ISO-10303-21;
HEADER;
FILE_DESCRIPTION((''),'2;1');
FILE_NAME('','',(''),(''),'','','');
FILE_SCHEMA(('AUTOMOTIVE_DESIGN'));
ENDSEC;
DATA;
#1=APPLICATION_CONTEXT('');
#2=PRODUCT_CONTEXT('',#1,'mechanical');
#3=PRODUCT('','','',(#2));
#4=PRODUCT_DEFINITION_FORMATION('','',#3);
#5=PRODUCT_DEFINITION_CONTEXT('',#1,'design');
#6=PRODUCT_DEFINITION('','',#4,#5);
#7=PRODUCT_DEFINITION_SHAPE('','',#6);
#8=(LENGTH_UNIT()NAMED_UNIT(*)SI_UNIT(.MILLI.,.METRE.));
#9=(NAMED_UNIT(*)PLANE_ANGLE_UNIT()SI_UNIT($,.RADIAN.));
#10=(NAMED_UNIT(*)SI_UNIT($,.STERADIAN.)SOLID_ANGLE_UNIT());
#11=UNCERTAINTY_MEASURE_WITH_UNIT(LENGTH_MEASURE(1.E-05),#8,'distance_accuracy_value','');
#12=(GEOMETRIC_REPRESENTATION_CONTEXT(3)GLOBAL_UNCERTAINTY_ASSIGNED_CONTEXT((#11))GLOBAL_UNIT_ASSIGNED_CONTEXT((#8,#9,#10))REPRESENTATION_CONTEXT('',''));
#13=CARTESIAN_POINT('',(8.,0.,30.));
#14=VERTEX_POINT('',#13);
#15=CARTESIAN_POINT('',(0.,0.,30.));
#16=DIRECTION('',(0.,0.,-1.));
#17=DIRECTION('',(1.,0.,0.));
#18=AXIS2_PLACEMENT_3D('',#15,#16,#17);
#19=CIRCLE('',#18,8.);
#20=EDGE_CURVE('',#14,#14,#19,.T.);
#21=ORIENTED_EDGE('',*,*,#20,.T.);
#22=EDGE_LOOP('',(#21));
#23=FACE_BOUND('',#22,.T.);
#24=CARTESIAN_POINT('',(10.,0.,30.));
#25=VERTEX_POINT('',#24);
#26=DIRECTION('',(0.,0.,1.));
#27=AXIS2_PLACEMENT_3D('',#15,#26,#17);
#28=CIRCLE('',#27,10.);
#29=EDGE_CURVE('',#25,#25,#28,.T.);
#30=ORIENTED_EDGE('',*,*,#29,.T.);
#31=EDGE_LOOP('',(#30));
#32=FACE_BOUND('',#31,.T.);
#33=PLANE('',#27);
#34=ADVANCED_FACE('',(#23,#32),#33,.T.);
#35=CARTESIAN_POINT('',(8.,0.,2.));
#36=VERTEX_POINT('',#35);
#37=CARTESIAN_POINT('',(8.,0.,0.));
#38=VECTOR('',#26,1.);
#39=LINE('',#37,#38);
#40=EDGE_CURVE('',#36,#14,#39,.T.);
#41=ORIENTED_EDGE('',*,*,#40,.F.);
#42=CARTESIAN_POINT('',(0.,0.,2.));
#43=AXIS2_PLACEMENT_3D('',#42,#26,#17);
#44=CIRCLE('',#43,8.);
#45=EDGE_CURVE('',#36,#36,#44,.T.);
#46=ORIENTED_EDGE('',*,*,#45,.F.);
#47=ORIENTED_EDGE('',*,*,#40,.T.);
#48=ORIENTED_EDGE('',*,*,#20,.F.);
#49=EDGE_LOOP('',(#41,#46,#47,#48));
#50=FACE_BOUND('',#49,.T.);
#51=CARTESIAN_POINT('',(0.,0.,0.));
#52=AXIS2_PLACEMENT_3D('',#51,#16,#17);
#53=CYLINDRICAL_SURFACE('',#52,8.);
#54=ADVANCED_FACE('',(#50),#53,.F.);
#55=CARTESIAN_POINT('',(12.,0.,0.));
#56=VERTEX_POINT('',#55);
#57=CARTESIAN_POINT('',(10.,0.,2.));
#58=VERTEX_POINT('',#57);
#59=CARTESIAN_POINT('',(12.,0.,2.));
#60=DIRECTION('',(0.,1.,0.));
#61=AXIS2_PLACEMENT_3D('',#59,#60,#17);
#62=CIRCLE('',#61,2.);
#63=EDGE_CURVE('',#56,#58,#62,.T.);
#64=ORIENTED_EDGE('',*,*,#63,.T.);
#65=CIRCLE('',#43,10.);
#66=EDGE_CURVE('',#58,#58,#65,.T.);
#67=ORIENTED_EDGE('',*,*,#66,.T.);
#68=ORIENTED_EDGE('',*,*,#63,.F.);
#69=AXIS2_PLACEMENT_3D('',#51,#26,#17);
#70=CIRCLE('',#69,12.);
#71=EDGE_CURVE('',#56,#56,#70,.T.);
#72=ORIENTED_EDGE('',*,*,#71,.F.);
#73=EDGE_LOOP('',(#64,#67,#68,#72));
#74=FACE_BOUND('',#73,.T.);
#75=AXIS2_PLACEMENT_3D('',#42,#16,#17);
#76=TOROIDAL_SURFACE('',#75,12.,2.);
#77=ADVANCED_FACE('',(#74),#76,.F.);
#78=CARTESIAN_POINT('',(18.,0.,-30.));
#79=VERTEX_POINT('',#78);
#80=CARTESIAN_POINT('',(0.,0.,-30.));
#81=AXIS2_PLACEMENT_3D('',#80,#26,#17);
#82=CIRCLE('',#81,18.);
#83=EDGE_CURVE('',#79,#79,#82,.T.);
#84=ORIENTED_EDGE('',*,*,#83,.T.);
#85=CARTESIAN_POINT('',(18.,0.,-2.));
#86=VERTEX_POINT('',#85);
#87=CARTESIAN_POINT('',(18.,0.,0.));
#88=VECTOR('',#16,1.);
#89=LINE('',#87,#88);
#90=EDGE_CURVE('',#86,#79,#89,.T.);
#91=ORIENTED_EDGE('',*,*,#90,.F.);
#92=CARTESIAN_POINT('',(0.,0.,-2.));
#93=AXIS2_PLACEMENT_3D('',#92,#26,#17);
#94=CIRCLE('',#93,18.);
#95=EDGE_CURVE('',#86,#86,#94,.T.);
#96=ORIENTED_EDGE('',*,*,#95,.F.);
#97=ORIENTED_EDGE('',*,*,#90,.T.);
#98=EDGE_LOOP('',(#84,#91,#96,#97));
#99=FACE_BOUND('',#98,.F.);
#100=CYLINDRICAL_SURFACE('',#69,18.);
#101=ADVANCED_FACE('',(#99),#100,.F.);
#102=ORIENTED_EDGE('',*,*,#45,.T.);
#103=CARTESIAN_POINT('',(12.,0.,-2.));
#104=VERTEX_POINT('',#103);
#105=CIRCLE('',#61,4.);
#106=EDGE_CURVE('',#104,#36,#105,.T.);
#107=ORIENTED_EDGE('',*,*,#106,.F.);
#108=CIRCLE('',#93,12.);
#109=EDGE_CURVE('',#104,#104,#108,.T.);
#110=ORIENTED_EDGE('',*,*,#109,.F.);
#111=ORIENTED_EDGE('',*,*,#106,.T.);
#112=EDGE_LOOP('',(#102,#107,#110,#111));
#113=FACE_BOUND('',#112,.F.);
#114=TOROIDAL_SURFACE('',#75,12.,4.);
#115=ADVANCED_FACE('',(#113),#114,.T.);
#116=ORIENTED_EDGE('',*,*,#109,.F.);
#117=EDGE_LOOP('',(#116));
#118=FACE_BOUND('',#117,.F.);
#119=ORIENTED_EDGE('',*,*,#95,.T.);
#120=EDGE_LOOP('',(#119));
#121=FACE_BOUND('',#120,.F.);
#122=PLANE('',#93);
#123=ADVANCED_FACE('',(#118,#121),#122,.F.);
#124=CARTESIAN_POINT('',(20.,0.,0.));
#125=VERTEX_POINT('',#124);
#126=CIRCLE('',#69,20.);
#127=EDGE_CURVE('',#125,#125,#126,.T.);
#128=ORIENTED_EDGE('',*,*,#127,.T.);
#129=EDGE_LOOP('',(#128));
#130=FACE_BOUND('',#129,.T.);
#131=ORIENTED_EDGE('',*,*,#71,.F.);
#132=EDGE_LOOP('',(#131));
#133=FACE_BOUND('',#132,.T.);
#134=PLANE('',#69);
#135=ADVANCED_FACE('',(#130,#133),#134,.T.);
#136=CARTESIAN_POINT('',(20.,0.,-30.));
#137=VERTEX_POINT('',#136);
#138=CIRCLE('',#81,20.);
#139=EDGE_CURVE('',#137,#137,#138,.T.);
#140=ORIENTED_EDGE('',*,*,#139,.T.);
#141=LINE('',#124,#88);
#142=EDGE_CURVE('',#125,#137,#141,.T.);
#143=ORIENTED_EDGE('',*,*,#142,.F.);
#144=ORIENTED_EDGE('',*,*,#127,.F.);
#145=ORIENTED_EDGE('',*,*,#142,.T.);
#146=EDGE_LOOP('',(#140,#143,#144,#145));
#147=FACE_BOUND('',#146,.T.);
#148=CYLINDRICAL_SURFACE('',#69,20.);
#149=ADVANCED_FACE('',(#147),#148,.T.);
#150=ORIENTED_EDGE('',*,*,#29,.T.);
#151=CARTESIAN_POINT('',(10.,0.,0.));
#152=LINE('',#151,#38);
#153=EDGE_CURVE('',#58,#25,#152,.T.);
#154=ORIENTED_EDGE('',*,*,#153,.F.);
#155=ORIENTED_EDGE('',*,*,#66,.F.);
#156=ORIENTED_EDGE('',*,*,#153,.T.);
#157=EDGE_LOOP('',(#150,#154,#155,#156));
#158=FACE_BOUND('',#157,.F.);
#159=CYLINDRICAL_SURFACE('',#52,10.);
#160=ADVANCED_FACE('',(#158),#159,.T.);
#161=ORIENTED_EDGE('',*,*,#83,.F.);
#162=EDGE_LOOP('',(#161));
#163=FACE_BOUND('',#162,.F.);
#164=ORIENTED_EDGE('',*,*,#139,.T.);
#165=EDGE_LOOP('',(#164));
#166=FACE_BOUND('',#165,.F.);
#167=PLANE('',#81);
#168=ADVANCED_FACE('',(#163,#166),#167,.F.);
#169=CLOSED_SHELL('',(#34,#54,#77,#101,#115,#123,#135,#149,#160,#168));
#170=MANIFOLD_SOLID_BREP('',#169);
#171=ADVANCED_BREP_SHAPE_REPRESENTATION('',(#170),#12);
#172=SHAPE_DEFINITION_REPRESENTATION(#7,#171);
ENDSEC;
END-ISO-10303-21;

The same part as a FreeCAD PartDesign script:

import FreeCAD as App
import Part
import Sketcher
from FreeCAD import Vector


def edges_at(feature, points):
    """Names of the edges that pass closest to the given points."""
    edges = feature.Shape.Edges
    near = lambda p: min(range(len(edges)), key=lambda i: edges[i].distToShape(Part.Vertex(*p))[0])
    return sorted({f"Edge{near(p) + 1}" for p in points})


def faces_at(feature, points):
    """Names of the faces that lie closest to the given points."""
    faces = feature.Shape.Faces
    near = lambda p: min(range(len(faces)), key=lambda i: faces[i].distToShape(Part.Vertex(*p))[0])
    return sorted({f"Face{near(p) + 1}" for p in points})

doc = App.newDocument("Part")
body = doc.addObject("PartDesign::Body", "Body")

# Sketch on XY plane
sketch1 = doc.addObject("Sketcher::SketchObject", "Sketch")
body.addObject(sketch1)
sketch1.AttachmentSupport = (doc.XY_Plane, [""])
sketch1.MapMode = "FlatFace"
sketch1.addGeometry(Part.Circle(Vector(0, 0, 0), Vector(0, 0, 1), 20), False)
sketch1.addConstraint([
    Sketcher.Constraint("Coincident", 0, 3, -1, 1),
    Sketcher.Constraint("Diameter", 0, 40.0),
])
pad1 = doc.addObject("PartDesign::Pad", "Pad")
body.addObject(pad1)
pad1.Profile = sketch1
pad1.Length = 30
pad1.Reversed = True

# Sketch on XY plane
sketch2 = doc.addObject("Sketcher::SketchObject", "Sketch001")
body.addObject(sketch2)
sketch2.AttachmentSupport = (doc.XY_Plane, [""])
sketch2.MapMode = "FlatFace"
sketch2.addGeometry(Part.Circle(Vector(0, 0, 0), Vector(0, 0, 1), 10), False)
sketch2.addConstraint([
    Sketcher.Constraint("Coincident", 0, 3, -1, 1),
    Sketcher.Constraint("Diameter", 0, 20.0),
])
pad2 = doc.addObject("PartDesign::Pad", "Pad001")
body.addObject(pad2)
pad2.Profile = sketch2
pad2.Length = 30
doc.recompute()

fillet = doc.addObject("PartDesign::Fillet", "Fillet")
body.addObject(fillet)
fillet.Base = (pad2, edges_at(pad2, [(-10, 0, 0)]))
fillet.Radius = 2
doc.recompute()

thickness = doc.addObject("PartDesign::Thickness", "Thickness")
body.addObject(thickness)
thickness.Base = (fillet, faces_at(fillet, [(-2.364, 6.233, -30), (-1.182, 3.117, 30)]))
thickness.Value = 2
thickness.Reversed = True
thickness.Join = "Intersection"

doc.recompute()
